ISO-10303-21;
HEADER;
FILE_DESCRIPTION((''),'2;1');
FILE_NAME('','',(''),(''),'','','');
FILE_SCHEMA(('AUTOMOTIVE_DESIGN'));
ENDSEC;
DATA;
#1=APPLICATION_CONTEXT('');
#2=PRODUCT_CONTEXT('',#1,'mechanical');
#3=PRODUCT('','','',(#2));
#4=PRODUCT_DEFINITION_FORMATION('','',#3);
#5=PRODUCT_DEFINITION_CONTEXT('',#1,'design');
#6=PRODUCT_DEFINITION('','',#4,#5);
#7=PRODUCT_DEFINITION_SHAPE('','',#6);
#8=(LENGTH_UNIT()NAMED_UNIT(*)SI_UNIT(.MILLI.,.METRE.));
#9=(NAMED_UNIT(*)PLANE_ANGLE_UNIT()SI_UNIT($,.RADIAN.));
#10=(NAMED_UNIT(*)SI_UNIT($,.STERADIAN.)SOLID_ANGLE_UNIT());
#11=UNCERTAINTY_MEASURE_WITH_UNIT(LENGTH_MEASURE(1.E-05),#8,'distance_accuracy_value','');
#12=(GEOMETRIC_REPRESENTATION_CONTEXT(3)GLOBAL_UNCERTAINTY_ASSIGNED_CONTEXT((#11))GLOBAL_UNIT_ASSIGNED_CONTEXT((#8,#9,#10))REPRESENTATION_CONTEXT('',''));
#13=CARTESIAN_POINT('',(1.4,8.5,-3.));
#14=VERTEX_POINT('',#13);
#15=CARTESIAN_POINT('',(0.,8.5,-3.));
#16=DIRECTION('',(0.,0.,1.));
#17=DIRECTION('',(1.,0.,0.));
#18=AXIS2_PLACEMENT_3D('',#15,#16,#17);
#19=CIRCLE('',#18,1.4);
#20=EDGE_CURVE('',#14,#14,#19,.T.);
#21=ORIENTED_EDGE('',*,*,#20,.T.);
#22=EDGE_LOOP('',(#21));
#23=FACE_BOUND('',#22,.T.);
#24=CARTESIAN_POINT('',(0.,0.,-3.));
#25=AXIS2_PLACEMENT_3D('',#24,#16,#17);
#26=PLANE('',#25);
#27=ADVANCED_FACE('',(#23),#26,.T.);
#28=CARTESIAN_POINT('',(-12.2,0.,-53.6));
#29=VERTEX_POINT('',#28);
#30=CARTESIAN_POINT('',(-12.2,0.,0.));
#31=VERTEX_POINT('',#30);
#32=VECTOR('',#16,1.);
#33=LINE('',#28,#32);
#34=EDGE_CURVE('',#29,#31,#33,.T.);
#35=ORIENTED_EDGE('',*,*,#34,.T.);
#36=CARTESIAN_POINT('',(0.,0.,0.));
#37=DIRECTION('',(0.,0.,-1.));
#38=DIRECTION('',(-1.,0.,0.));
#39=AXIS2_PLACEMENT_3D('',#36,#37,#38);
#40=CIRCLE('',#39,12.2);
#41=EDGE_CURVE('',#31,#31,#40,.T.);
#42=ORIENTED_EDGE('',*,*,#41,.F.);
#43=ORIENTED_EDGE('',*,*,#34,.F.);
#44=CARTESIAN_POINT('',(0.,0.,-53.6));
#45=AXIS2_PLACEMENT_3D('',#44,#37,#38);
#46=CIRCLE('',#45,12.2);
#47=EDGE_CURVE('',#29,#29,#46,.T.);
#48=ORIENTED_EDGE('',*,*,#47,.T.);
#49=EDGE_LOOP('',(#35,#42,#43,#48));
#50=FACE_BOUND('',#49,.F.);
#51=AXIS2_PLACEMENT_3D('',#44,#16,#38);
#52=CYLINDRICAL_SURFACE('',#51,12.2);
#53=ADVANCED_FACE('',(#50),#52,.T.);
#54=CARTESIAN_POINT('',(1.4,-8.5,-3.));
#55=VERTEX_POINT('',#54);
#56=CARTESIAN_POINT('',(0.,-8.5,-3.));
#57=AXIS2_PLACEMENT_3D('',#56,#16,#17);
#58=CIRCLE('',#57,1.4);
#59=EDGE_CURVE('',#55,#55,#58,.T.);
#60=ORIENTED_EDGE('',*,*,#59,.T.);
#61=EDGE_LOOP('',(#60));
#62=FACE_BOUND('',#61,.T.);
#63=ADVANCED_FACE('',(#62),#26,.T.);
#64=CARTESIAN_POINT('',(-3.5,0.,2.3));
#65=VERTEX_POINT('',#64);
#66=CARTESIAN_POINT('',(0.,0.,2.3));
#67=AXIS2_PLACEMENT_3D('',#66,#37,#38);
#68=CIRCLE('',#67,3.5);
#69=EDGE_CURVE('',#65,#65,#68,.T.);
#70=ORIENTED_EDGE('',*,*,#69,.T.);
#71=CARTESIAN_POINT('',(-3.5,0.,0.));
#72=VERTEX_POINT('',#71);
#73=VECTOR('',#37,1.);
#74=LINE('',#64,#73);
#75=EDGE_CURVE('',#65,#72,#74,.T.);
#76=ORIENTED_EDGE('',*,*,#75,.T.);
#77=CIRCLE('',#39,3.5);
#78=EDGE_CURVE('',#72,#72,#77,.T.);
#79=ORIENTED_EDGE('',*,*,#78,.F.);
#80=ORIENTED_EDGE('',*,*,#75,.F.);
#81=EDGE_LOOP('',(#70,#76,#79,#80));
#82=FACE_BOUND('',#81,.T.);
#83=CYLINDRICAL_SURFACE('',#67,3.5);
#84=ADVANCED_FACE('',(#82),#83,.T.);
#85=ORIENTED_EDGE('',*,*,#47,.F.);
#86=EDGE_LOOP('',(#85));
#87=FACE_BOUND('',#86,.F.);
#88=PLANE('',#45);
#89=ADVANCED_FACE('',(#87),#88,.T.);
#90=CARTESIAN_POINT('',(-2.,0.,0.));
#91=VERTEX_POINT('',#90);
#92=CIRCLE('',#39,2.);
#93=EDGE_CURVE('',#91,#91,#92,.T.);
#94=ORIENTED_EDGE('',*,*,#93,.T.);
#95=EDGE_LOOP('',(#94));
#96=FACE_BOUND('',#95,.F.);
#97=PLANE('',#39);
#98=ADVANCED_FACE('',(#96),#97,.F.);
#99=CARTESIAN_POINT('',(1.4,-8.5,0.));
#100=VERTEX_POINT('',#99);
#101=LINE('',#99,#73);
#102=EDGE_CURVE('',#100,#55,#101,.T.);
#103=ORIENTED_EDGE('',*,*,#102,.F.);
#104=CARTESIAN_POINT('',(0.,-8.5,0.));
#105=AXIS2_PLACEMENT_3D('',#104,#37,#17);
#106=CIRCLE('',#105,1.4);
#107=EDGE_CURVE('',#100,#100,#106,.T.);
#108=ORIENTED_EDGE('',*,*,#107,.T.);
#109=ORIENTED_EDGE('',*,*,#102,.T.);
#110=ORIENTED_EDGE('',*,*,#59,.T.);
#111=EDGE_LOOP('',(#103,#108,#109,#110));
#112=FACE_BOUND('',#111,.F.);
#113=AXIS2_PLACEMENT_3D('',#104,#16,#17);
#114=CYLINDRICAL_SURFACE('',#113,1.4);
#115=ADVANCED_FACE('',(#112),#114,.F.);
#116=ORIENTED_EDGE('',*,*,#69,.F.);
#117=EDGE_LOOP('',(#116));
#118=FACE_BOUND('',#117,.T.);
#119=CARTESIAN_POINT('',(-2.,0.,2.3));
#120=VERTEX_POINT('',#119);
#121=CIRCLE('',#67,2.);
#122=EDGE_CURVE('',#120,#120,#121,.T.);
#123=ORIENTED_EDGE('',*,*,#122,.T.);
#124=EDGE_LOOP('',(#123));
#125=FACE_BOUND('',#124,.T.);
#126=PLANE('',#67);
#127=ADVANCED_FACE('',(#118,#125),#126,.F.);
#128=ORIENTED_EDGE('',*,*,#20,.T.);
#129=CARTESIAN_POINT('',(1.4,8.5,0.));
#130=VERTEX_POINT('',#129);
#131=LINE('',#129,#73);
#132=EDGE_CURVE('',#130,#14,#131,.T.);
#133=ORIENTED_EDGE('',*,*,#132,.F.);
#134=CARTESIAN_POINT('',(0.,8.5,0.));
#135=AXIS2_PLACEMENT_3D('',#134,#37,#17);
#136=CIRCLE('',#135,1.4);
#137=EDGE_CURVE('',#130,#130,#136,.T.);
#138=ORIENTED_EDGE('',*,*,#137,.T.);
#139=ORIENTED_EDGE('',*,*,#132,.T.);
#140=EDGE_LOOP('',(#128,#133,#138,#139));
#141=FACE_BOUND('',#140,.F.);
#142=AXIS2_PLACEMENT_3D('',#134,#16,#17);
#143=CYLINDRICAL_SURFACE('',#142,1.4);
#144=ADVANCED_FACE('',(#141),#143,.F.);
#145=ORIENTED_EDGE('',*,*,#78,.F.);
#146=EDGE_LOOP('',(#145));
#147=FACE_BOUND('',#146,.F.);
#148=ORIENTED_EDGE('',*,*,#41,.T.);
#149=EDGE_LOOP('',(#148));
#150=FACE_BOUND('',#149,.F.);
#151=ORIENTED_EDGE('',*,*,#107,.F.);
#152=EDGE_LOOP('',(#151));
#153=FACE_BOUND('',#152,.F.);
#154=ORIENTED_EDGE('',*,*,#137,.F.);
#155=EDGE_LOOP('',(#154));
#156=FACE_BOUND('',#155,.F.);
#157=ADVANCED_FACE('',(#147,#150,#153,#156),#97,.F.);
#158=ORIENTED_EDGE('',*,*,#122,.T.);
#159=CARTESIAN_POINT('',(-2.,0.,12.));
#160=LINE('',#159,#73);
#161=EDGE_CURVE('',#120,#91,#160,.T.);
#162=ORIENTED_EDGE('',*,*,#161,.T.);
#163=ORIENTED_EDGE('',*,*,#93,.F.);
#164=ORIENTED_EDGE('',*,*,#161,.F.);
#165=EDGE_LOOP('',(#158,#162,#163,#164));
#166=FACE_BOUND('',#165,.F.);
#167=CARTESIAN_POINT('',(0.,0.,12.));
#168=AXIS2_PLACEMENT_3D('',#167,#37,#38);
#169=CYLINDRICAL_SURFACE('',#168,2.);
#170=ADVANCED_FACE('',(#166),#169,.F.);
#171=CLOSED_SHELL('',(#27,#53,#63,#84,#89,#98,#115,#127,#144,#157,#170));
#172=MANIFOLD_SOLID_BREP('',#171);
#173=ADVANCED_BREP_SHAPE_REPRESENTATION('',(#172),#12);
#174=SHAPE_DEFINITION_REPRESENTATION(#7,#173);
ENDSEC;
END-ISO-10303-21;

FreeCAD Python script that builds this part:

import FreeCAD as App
import Part
import Sketcher

V = App.Vector

doc = App.newDocument("Part")
params = doc.addObject("Spreadsheet::Sheet", "Params")
for row, (alias, value) in enumerate([
    ("sketch1_height", "53.6 mm"),
    ("sketch1_height2", "2.3 mm"),
    ("sketch1_width", "2 mm"),
    ("sketch1_width2", "8.7 mm"),
    ("sketch1_width3", "1.5 mm"),
    ("revolution_angle", "360 deg"),
    ("sketch2_diameter", "2.8 mm"),
    ("pocket1_length", "3 mm"),
], start=1):
    params.set(f"A{row}", alias)
    params.set(f"B{row}", "=" + value)
    params.setAlias(f"B{row}", alias)

body = doc.addObject("PartDesign::Body", "Body")

sketch1 = body.newObject("Sketcher::SketchObject", "Sketch")
sketch1.AttachmentSupport = (doc.getObject("XZ_Plane"), [""])
sketch1.MapMode = "FlatFace"
sketch1.addGeometry(Part.LineSegment(V(-12.2, -53.6, 0), V(-12.2, 0, 0)), False)
sketch1.addGeometry(Part.LineSegment(V(-12.2, 0, 0), V(-3.5, 0, 0)), False)
sketch1.addGeometry(Part.LineSegment(V(-3.5, 0, 0), V(-3.5, 2.3, 0)), False)
sketch1.addGeometry(Part.LineSegment(V(-3.5, 2.3, 0), V(-2, 2.3, 0)), False)
sketch1.addGeometry(Part.LineSegment(V(-2, 2.3, 0), V(-2, 0, 0)), False)
sketch1.addGeometry(Part.LineSegment(V(-2, 0, 0), V(0, 0, 0)), False)
sketch1.addGeometry(Part.LineSegment(V(0, 0, 0), V(0, -53.6, 0)), False)
sketch1.addGeometry(Part.LineSegment(V(0, -53.6, 0), V(-12.2, -53.6, 0)), False)
sketch1.addConstraint(Sketcher.Constraint("Coincident", 0, 2, 1, 1))
sketch1.addConstraint(Sketcher.Constraint("Coincident", 1, 2, 2, 1))
sketch1.addConstraint(Sketcher.Constraint("Coincident", 2, 2, 3, 1))
sketch1.addConstraint(Sketcher.Constraint("Coincident", 3, 2, 4, 1))
sketch1.addConstraint(Sketcher.Constraint("Coincident", 4, 2, 5, 1))
sketch1.addConstraint(Sketcher.Constraint("Coincident", 5, 2, 6, 1))
sketch1.addConstraint(Sketcher.Constraint("Coincident", 6, 2, 7, 1))
sketch1.addConstraint(Sketcher.Constraint("Coincident", 7, 2, 0, 1))
sketch1.addConstraint(Sketcher.Constraint("Vertical", 0))
sketch1.addConstraint(Sketcher.Constraint("Horizontal", 1))
sketch1.addConstraint(Sketcher.Constraint("Vertical", 2))
sketch1.addConstraint(Sketcher.Constraint("Horizontal", 3))
sketch1.addConstraint(Sketcher.Constraint("Vertical", 4))
sketch1.addConstraint(Sketcher.Constraint("Horizontal", 5))
sketch1.addConstraint(Sketcher.Constraint("Vertical", 6))
sketch1.addConstraint(Sketcher.Constraint("Horizontal", 7))
sketch1.addConstraint(Sketcher.Constraint("Coincident", 5, 2, -1, 1))
sketch1.addConstraint(Sketcher.Constraint("PointOnObject", 0, 2, -1))
sketch1.addConstraint(Sketcher.Constraint("DistanceY", 0, 1, 0, 2, 53.6))
sketch1.addConstraint(Sketcher.Constraint("DistanceY", 2, 1, 2, 2, 2.3))
sketch1.addConstraint(Sketcher.Constraint("DistanceX", 5, 1, 5, 2, 2.0))
sketch1.addConstraint(Sketcher.Constraint("DistanceX", 1, 1, 1, 2, 8.7))
sketch1.addConstraint(Sketcher.Constraint("DistanceX", 3, 1, 3, 2, 1.5))
sketch1.setExpression("Constraints[18]", "Params.sketch1_height")
sketch1.setExpression("Constraints[19]", "Params.sketch1_height2")
sketch1.setExpression("Constraints[20]", "Params.sketch1_width")
sketch1.setExpression("Constraints[21]", "Params.sketch1_width2")
sketch1.setExpression("Constraints[22]", "Params.sketch1_width3")
revolution = body.newObject("PartDesign::Revolution", "Revolution")
revolution.Profile = sketch1
revolution.ReferenceAxis = (sketch1, ["V_Axis"])
revolution.setExpression("Angle", "Params.revolution_angle")

sketch2 = body.newObject("Sketcher::SketchObject", "Sketch001")
sketch2.AttachmentSupport = (doc.getObject("XY_Plane"), [""])
sketch2.MapMode = "FlatFace"
sketch2.addGeometry(Part.Circle(V(0, 8.5, 0), V(0, 0, 1), 1.4), False)
sketch2.addGeometry(Part.Circle(V(0, -8.5, 0), V(0, 0, 1), 1.4), False)
sketch2.addConstraint(Sketcher.Constraint("Equal", 0, 1))
sketch2.addConstraint(Sketcher.Constraint("Symmetric", 0, 3, 1, 3, -1, 1))
sketch2.addConstraint(Sketcher.Constraint("PointOnObject", 0, 3, -2))
sketch2.addConstraint(Sketcher.Constraint("Diameter", 0, 2.8))
sketch2.addConstraint(Sketcher.Constraint("DistanceY", 1, 3, 0, 3, 17.0))
sketch2.setExpression("Constraints[3]", "Params.sketch2_diameter")
pocket1 = body.newObject("PartDesign::Pocket", "Pocket")
pocket1.Profile = sketch2
pocket1.setExpression("Length", "Params.pocket1_length")

doc.recompute()
